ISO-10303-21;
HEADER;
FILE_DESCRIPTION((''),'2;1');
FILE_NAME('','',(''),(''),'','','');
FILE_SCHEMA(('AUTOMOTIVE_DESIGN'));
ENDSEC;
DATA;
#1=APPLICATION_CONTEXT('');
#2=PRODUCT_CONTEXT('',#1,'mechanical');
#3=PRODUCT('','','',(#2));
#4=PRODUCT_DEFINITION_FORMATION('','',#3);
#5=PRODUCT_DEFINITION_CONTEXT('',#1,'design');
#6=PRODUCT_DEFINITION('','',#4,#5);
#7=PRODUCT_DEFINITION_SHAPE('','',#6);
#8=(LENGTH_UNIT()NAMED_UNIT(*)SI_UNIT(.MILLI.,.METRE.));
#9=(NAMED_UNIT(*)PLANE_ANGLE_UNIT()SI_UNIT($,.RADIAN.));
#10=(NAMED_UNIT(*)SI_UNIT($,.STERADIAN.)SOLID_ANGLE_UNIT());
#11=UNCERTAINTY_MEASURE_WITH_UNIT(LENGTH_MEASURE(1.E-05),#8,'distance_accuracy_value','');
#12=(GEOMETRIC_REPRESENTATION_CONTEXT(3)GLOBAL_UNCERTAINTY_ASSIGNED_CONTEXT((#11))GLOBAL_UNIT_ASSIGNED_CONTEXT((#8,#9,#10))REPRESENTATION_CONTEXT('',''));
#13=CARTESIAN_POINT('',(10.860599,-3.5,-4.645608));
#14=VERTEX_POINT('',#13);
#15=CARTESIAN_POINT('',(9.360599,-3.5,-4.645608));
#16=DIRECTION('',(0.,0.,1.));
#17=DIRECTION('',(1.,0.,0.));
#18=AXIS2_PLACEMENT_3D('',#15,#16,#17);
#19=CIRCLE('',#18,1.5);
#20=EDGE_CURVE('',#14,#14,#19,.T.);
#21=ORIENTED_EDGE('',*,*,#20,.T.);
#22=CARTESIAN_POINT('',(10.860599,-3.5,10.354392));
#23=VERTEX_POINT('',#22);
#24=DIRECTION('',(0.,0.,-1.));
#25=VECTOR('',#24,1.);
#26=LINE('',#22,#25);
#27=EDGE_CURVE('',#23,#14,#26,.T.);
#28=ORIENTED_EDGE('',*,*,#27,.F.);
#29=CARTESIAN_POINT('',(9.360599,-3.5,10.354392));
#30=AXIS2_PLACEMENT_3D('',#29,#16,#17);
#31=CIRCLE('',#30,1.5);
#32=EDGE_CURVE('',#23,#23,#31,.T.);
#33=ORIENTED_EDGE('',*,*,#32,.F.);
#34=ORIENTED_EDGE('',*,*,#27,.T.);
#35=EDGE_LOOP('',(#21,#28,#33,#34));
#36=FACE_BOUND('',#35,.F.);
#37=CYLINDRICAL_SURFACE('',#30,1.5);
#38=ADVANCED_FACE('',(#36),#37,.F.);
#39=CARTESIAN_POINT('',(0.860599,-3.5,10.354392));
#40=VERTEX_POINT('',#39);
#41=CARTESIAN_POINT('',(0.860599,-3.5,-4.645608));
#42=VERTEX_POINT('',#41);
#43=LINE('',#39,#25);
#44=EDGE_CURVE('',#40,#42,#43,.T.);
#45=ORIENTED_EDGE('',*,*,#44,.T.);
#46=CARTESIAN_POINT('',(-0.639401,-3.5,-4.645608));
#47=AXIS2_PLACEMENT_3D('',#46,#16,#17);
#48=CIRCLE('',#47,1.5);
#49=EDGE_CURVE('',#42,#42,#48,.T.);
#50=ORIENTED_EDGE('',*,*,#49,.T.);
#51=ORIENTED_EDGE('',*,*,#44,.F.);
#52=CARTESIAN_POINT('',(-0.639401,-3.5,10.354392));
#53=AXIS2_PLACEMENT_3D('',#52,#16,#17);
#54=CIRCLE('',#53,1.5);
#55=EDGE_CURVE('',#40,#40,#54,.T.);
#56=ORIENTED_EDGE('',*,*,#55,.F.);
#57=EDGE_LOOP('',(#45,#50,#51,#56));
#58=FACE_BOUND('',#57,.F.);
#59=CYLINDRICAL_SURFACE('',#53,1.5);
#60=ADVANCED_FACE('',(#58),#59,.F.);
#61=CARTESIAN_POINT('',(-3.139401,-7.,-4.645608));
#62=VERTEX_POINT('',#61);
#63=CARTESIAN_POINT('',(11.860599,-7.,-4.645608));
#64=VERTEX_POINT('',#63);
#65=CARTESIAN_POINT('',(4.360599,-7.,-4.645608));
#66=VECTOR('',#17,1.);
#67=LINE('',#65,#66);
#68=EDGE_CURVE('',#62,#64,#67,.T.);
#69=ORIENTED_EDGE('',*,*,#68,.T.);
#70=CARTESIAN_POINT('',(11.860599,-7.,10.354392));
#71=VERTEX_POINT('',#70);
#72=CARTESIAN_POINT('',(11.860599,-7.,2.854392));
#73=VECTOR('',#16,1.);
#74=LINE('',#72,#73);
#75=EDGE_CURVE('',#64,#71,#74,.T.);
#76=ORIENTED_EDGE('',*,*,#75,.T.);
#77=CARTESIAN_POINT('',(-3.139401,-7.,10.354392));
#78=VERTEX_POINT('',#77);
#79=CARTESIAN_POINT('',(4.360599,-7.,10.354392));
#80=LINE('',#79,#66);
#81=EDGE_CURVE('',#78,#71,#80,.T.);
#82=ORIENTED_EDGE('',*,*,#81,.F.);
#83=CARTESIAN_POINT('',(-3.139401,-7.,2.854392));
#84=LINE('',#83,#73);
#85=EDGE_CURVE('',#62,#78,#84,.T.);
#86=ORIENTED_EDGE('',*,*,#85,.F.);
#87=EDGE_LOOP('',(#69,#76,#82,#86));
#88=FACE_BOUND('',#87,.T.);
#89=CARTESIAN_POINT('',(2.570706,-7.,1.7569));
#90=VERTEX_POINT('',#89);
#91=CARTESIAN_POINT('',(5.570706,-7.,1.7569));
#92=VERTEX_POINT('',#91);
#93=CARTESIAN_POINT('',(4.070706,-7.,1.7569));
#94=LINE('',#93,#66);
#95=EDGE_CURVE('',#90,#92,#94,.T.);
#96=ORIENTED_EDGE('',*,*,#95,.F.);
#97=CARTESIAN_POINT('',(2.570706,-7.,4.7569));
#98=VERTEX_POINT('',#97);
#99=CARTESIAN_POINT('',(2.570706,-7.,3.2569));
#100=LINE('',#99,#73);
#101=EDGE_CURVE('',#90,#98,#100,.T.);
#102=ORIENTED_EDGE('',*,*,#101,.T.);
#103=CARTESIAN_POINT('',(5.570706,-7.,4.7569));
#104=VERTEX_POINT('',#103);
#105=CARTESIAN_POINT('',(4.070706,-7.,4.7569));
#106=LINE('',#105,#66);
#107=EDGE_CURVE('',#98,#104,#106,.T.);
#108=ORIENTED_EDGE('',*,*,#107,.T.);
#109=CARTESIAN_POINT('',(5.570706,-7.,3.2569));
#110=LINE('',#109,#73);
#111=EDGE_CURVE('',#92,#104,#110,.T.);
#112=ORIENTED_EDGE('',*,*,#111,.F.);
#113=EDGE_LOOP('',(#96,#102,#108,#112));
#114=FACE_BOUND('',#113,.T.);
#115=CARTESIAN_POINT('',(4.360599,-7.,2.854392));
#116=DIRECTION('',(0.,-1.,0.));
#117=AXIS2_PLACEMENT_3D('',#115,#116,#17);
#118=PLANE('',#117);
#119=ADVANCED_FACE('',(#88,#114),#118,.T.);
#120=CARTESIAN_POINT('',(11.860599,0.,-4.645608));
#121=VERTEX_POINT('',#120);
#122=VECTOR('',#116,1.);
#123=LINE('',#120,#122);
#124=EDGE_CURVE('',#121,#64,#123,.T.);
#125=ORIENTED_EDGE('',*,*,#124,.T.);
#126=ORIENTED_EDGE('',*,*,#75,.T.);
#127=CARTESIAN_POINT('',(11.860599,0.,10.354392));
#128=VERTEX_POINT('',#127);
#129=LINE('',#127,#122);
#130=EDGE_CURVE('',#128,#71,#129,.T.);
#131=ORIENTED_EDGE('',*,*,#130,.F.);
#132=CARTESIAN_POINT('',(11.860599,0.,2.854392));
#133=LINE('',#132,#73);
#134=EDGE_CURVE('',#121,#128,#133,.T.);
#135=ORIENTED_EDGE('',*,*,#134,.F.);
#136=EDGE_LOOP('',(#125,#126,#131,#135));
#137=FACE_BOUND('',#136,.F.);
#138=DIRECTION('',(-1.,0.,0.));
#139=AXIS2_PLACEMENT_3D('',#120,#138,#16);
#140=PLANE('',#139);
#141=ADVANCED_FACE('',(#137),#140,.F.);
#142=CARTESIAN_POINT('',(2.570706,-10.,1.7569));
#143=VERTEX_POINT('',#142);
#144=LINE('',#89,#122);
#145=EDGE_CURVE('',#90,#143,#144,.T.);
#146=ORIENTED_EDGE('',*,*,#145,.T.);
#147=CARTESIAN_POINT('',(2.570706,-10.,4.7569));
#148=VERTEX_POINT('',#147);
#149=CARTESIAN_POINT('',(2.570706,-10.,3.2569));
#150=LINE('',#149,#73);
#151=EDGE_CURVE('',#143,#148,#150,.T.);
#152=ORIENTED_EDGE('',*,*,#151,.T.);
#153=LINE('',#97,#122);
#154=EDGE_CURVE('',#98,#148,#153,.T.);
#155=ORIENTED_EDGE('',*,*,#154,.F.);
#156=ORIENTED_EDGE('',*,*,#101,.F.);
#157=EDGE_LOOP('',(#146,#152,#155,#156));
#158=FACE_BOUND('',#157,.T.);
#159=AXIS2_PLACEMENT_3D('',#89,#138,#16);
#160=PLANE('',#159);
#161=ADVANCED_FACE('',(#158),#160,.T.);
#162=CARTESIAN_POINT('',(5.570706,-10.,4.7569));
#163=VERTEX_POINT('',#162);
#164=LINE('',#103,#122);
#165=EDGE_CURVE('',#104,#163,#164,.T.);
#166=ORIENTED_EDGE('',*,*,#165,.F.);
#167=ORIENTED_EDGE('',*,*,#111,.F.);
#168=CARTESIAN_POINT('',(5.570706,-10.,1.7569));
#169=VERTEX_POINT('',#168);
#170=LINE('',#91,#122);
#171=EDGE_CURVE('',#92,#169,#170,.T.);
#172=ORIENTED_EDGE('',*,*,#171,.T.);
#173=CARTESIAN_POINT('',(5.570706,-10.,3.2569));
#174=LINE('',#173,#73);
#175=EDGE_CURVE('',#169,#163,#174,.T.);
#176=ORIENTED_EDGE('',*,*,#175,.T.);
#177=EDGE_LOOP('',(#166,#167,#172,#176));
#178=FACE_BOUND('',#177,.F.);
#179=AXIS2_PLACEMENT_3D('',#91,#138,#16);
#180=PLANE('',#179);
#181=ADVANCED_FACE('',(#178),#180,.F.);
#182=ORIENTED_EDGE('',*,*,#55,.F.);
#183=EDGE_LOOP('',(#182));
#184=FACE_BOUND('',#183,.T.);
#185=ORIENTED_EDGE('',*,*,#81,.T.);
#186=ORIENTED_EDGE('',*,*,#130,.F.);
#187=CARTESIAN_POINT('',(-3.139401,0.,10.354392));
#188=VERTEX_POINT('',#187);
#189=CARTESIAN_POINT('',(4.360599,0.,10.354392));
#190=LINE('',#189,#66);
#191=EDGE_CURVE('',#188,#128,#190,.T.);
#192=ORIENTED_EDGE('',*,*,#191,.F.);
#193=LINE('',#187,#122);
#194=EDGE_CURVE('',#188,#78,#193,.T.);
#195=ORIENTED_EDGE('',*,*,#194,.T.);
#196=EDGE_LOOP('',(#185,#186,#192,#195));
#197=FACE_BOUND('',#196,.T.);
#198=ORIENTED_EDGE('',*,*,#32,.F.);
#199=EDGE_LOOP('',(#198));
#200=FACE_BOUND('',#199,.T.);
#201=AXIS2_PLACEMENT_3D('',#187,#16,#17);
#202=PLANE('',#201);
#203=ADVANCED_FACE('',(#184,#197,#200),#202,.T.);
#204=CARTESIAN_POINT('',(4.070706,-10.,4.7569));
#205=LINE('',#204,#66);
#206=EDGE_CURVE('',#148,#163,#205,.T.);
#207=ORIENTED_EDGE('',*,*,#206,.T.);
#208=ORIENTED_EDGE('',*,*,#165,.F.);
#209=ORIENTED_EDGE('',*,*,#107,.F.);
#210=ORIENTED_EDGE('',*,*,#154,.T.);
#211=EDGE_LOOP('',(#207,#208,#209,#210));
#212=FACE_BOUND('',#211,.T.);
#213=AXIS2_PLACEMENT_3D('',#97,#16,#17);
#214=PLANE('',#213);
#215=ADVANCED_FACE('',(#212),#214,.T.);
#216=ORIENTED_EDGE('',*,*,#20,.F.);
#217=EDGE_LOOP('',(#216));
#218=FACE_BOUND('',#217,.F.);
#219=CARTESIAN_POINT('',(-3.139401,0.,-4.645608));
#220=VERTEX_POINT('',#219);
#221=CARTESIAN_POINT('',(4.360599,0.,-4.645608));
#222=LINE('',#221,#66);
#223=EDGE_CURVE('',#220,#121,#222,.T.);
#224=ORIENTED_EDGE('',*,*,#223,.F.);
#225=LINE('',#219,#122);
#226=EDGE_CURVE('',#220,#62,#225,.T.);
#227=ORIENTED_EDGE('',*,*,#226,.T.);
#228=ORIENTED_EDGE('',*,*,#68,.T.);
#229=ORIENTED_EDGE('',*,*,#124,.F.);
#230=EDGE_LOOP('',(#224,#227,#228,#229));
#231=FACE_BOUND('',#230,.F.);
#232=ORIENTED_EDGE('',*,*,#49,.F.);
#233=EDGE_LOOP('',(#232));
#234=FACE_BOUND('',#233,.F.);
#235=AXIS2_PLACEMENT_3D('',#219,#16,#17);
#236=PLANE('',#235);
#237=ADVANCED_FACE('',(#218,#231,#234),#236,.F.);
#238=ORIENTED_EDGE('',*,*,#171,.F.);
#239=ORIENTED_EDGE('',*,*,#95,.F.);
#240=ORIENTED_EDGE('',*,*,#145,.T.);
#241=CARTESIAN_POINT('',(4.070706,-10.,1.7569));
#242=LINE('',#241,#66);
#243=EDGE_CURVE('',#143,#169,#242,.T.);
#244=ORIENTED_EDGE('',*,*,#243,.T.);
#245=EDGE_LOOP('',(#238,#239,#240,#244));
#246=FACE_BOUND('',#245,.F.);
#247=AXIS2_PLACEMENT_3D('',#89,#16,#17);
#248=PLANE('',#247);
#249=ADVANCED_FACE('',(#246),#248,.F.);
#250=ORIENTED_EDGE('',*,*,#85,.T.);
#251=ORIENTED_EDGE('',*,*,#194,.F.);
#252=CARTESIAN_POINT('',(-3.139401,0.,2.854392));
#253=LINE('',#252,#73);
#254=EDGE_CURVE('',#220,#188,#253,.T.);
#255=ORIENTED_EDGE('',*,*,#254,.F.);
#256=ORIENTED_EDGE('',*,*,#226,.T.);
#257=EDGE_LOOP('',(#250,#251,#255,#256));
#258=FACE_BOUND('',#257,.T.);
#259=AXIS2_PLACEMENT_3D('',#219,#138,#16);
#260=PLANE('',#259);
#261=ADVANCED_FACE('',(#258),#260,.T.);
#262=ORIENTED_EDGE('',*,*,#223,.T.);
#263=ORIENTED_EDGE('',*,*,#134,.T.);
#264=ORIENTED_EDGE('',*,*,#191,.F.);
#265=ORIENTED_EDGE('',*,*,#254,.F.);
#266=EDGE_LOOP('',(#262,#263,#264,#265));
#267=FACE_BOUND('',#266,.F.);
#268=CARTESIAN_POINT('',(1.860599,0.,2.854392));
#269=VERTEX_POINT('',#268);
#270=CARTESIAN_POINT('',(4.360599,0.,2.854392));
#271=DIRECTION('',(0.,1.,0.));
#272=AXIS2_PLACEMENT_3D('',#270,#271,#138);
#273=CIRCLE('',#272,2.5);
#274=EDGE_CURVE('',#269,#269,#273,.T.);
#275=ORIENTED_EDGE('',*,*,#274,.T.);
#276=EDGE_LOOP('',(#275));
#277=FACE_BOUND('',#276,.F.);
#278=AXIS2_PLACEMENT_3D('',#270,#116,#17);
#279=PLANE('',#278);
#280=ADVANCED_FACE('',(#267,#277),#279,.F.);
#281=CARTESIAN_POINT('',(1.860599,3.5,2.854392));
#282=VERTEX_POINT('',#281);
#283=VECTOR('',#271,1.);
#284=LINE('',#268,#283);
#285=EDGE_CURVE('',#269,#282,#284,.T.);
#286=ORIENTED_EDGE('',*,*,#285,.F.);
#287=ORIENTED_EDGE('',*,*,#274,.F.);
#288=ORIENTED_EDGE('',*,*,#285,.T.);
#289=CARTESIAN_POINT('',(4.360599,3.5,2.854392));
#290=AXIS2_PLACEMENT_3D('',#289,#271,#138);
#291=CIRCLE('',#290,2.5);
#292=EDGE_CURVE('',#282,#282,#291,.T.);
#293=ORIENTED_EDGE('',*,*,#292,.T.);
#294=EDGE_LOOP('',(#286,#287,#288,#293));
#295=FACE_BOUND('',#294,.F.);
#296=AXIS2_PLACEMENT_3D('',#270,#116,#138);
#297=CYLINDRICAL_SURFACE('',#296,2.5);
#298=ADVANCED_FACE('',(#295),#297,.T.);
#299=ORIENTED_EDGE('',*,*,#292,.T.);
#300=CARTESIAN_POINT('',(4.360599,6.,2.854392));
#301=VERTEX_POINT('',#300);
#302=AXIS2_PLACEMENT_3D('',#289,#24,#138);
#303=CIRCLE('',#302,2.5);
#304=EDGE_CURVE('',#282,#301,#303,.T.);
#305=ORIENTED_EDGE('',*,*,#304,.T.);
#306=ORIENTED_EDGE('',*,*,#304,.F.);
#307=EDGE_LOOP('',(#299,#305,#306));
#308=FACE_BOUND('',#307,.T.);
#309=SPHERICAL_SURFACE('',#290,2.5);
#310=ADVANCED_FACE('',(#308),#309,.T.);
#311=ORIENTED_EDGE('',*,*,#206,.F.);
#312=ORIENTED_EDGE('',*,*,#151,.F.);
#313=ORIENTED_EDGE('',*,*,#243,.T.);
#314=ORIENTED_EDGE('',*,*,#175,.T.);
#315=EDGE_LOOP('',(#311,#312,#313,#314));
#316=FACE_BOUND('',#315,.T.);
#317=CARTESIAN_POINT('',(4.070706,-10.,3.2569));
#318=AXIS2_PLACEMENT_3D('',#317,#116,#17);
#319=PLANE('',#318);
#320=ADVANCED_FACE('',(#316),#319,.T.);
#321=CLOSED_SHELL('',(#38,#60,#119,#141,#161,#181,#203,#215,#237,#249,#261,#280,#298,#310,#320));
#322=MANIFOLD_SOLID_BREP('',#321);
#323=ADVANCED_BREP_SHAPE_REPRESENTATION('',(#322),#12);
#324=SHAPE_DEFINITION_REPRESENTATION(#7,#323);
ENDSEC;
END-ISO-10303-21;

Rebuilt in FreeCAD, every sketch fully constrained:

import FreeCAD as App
import Part
import Sketcher

V = App.Vector
Q = App.Units.Quantity


def edges_at(feature, points):
    """Names of the edges that pass closest to the given points."""
    edges = feature.Shape.Edges
    near = lambda p: min(range(len(edges)), key=lambda i: edges[i].distToShape(Part.Vertex(*p))[0])
    return sorted({f"Edge{near(p) + 1}" for p in points})


def add_polygon(sketch, points):
    """Adds a closed chain of lines whose ends are joined by coincident constraints."""
    first, n = sketch.GeometryCount, len(points)
    for a, b in zip(points, points[1:] + points[:1]):
        sketch.addGeometry(Part.LineSegment(App.Vector(*a, 0), App.Vector(*b, 0)), False)
    for i in range(n):
        sketch.addConstraint(Sketcher.Constraint("Coincident", first + i, 2, first + (i + 1) % n, 1))

doc = App.newDocument("Part")
body = doc.addObject("PartDesign::Body", "Body")

# Sketch on XZ plane
sketch1 = body.newObject("Sketcher::SketchObject", "Sketch")
sketch1.AttachmentSupport = (doc.getObject("XZ_Plane"), [""])
sketch1.MapMode = "FlatFace"
add_polygon(sketch1, [(-3.139401, 10.354392), (-3.139401, -4.645608), (11.860599, -4.645608), (11.860599, 10.354392)])  # lines 0-3
sketch1.addConstraint(Sketcher.Constraint("Vertical", 0))
sketch1.addConstraint(Sketcher.Constraint("Horizontal", 1))
sketch1.addConstraint(Sketcher.Constraint("Vertical", 2))
sketch1.addConstraint(Sketcher.Constraint("Horizontal", 3))
sketch1.addConstraint(Sketcher.Constraint("Equal", 3, 0))
sketch1.addConstraint(Sketcher.Constraint("DistanceX", 1, 1, 1, 2, Q("15 mm")))
sketch1.addConstraint(Sketcher.Constraint("DistanceX", 0, 2, -1, 1, Q("3.139401 mm")))
sketch1.addConstraint(Sketcher.Constraint("DistanceY", 0, 2, -1, 1, Q("4.645608 mm")))
pad1 = body.newObject("PartDesign::Pad", "Pad")
pad1.Profile = sketch1
pad1.Length = 7

# Sketch on XY plane
sketch2 = body.newObject("Sketcher::SketchObject", "Sketch001")
sketch2.AttachmentSupport = (doc.getObject("XY_Plane"), [""])
sketch2.MapMode = "FlatFace"
sketch2.AttachmentOffset = App.Placement(V(0, 0, 10.354392), App.Rotation())
sketch2.addGeometry(Part.Circle(V(-0.639401, -3.5, 0), V(0, 0, 1), 1.5), False)
sketch2.addConstraint(Sketcher.Constraint("Diameter", 0, Q("3 mm")))
sketch2.addConstraint(Sketcher.Constraint("DistanceY", 0, 3, -1, 1, Q("3.5 mm")))
sketch2.addConstraint(Sketcher.Constraint("DistanceX", 0, 3, -1, 1, Q("0.639401 mm")))
pocket1 = body.newObject("PartDesign::Pocket", "Pocket")
pocket1.Profile = sketch2
pocket1.Length = 15

# Sketch on XY plane
sketch3 = body.newObject("Sketcher::SketchObject", "Sketch002")
sketch3.AttachmentSupport = (doc.getObject("XY_Plane"), [""])
sketch3.MapMode = "FlatFace"
sketch3.AttachmentOffset = App.Placement(V(0, 0, 10.354392), App.Rotation())
sketch3.addGeometry(Part.Circle(V(9.360599, -3.5, 0), V(0, 0, 1), 1.5), False)
sketch3.addConstraint(Sketcher.Constraint("Diameter", 0, Q("3 mm")))
sketch3.addConstraint(Sketcher.Constraint("DistanceY", 0, 3, -1, 1, Q("3.5 mm")))
sketch3.addConstraint(Sketcher.Constraint("DistanceX", -1, 1, 0, 3, Q("9.360599 mm")))
pocket2 = body.newObject("PartDesign::Pocket", "Pocket001")
pocket2.Profile = sketch3
pocket2.Length = 15

# Sketch on XZ plane
sketch4 = body.newObject("Sketcher::SketchObject", "Sketch003")
sketch4.AttachmentSupport = (doc.getObject("XZ_Plane"), [""])
sketch4.MapMode = "FlatFace"
sketch4.AttachmentOffset = App.Placement(V(0, 0, 7), App.Rotation())
add_polygon(sketch4, [(2.570706, 4.7569), (2.570706, 1.7569), (5.570706, 1.7569), (5.570706, 4.7569)])  # lines 0-3
sketch4.addConstraint(Sketcher.Constraint("Vertical", 0))
sketch4.addConstraint(Sketcher.Constraint("Horizontal", 1))
sketch4.addConstraint(Sketcher.Constraint("Vertical", 2))
sketch4.addConstraint(Sketcher.Constraint("Horizontal", 3))
sketch4.addConstraint(Sketcher.Constraint("Equal", 3, 0))
sketch4.addConstraint(Sketcher.Constraint("DistanceX", 1, 1, 1, 2, Q("3 mm")))
sketch4.addConstraint(Sketcher.Constraint("DistanceY", -1, 1, 0, 2, Q("1.7569 mm")))
sketch4.addConstraint(Sketcher.Constraint("DistanceX", -1, 1, 0, 2, Q("2.570706 mm")))
pad2 = body.newObject("PartDesign::Pad", "Pad001")
pad2.Profile = sketch4
pad2.Length = 3

# Sketch on XZ plane
sketch5 = body.newObject("Sketcher::SketchObject", "Sketch004")
sketch5.AttachmentSupport = (doc.getObject("XZ_Plane"), [""])
sketch5.MapMode = "FlatFace"
sketch5.addGeometry(Part.Circle(V(4.360599, 2.854392, 0), V(0, 0, 1), 2.5), False)
sketch5.addConstraint(Sketcher.Constraint("Diameter", 0, Q("5 mm")))
sketch5.addConstraint(Sketcher.Constraint("DistanceX", -1, 1, 0, 3, Q("4.360599 mm")))
sketch5.addConstraint(Sketcher.Constraint("DistanceY", -1, 1, 0, 3, Q("2.854392 mm")))
pad3 = body.newObject("PartDesign::Pad", "Pad002")
pad3.Profile = sketch5
pad3.Length = 6
pad3.Reversed = True
doc.recompute()

fillet = body.newObject("PartDesign::Fillet", "Fillet")
fillet.Base = (pad3, edges_at(pad3, [(6.861, 6, 2.854)]))
fillet.Radius = 2.5

doc.recompute()
